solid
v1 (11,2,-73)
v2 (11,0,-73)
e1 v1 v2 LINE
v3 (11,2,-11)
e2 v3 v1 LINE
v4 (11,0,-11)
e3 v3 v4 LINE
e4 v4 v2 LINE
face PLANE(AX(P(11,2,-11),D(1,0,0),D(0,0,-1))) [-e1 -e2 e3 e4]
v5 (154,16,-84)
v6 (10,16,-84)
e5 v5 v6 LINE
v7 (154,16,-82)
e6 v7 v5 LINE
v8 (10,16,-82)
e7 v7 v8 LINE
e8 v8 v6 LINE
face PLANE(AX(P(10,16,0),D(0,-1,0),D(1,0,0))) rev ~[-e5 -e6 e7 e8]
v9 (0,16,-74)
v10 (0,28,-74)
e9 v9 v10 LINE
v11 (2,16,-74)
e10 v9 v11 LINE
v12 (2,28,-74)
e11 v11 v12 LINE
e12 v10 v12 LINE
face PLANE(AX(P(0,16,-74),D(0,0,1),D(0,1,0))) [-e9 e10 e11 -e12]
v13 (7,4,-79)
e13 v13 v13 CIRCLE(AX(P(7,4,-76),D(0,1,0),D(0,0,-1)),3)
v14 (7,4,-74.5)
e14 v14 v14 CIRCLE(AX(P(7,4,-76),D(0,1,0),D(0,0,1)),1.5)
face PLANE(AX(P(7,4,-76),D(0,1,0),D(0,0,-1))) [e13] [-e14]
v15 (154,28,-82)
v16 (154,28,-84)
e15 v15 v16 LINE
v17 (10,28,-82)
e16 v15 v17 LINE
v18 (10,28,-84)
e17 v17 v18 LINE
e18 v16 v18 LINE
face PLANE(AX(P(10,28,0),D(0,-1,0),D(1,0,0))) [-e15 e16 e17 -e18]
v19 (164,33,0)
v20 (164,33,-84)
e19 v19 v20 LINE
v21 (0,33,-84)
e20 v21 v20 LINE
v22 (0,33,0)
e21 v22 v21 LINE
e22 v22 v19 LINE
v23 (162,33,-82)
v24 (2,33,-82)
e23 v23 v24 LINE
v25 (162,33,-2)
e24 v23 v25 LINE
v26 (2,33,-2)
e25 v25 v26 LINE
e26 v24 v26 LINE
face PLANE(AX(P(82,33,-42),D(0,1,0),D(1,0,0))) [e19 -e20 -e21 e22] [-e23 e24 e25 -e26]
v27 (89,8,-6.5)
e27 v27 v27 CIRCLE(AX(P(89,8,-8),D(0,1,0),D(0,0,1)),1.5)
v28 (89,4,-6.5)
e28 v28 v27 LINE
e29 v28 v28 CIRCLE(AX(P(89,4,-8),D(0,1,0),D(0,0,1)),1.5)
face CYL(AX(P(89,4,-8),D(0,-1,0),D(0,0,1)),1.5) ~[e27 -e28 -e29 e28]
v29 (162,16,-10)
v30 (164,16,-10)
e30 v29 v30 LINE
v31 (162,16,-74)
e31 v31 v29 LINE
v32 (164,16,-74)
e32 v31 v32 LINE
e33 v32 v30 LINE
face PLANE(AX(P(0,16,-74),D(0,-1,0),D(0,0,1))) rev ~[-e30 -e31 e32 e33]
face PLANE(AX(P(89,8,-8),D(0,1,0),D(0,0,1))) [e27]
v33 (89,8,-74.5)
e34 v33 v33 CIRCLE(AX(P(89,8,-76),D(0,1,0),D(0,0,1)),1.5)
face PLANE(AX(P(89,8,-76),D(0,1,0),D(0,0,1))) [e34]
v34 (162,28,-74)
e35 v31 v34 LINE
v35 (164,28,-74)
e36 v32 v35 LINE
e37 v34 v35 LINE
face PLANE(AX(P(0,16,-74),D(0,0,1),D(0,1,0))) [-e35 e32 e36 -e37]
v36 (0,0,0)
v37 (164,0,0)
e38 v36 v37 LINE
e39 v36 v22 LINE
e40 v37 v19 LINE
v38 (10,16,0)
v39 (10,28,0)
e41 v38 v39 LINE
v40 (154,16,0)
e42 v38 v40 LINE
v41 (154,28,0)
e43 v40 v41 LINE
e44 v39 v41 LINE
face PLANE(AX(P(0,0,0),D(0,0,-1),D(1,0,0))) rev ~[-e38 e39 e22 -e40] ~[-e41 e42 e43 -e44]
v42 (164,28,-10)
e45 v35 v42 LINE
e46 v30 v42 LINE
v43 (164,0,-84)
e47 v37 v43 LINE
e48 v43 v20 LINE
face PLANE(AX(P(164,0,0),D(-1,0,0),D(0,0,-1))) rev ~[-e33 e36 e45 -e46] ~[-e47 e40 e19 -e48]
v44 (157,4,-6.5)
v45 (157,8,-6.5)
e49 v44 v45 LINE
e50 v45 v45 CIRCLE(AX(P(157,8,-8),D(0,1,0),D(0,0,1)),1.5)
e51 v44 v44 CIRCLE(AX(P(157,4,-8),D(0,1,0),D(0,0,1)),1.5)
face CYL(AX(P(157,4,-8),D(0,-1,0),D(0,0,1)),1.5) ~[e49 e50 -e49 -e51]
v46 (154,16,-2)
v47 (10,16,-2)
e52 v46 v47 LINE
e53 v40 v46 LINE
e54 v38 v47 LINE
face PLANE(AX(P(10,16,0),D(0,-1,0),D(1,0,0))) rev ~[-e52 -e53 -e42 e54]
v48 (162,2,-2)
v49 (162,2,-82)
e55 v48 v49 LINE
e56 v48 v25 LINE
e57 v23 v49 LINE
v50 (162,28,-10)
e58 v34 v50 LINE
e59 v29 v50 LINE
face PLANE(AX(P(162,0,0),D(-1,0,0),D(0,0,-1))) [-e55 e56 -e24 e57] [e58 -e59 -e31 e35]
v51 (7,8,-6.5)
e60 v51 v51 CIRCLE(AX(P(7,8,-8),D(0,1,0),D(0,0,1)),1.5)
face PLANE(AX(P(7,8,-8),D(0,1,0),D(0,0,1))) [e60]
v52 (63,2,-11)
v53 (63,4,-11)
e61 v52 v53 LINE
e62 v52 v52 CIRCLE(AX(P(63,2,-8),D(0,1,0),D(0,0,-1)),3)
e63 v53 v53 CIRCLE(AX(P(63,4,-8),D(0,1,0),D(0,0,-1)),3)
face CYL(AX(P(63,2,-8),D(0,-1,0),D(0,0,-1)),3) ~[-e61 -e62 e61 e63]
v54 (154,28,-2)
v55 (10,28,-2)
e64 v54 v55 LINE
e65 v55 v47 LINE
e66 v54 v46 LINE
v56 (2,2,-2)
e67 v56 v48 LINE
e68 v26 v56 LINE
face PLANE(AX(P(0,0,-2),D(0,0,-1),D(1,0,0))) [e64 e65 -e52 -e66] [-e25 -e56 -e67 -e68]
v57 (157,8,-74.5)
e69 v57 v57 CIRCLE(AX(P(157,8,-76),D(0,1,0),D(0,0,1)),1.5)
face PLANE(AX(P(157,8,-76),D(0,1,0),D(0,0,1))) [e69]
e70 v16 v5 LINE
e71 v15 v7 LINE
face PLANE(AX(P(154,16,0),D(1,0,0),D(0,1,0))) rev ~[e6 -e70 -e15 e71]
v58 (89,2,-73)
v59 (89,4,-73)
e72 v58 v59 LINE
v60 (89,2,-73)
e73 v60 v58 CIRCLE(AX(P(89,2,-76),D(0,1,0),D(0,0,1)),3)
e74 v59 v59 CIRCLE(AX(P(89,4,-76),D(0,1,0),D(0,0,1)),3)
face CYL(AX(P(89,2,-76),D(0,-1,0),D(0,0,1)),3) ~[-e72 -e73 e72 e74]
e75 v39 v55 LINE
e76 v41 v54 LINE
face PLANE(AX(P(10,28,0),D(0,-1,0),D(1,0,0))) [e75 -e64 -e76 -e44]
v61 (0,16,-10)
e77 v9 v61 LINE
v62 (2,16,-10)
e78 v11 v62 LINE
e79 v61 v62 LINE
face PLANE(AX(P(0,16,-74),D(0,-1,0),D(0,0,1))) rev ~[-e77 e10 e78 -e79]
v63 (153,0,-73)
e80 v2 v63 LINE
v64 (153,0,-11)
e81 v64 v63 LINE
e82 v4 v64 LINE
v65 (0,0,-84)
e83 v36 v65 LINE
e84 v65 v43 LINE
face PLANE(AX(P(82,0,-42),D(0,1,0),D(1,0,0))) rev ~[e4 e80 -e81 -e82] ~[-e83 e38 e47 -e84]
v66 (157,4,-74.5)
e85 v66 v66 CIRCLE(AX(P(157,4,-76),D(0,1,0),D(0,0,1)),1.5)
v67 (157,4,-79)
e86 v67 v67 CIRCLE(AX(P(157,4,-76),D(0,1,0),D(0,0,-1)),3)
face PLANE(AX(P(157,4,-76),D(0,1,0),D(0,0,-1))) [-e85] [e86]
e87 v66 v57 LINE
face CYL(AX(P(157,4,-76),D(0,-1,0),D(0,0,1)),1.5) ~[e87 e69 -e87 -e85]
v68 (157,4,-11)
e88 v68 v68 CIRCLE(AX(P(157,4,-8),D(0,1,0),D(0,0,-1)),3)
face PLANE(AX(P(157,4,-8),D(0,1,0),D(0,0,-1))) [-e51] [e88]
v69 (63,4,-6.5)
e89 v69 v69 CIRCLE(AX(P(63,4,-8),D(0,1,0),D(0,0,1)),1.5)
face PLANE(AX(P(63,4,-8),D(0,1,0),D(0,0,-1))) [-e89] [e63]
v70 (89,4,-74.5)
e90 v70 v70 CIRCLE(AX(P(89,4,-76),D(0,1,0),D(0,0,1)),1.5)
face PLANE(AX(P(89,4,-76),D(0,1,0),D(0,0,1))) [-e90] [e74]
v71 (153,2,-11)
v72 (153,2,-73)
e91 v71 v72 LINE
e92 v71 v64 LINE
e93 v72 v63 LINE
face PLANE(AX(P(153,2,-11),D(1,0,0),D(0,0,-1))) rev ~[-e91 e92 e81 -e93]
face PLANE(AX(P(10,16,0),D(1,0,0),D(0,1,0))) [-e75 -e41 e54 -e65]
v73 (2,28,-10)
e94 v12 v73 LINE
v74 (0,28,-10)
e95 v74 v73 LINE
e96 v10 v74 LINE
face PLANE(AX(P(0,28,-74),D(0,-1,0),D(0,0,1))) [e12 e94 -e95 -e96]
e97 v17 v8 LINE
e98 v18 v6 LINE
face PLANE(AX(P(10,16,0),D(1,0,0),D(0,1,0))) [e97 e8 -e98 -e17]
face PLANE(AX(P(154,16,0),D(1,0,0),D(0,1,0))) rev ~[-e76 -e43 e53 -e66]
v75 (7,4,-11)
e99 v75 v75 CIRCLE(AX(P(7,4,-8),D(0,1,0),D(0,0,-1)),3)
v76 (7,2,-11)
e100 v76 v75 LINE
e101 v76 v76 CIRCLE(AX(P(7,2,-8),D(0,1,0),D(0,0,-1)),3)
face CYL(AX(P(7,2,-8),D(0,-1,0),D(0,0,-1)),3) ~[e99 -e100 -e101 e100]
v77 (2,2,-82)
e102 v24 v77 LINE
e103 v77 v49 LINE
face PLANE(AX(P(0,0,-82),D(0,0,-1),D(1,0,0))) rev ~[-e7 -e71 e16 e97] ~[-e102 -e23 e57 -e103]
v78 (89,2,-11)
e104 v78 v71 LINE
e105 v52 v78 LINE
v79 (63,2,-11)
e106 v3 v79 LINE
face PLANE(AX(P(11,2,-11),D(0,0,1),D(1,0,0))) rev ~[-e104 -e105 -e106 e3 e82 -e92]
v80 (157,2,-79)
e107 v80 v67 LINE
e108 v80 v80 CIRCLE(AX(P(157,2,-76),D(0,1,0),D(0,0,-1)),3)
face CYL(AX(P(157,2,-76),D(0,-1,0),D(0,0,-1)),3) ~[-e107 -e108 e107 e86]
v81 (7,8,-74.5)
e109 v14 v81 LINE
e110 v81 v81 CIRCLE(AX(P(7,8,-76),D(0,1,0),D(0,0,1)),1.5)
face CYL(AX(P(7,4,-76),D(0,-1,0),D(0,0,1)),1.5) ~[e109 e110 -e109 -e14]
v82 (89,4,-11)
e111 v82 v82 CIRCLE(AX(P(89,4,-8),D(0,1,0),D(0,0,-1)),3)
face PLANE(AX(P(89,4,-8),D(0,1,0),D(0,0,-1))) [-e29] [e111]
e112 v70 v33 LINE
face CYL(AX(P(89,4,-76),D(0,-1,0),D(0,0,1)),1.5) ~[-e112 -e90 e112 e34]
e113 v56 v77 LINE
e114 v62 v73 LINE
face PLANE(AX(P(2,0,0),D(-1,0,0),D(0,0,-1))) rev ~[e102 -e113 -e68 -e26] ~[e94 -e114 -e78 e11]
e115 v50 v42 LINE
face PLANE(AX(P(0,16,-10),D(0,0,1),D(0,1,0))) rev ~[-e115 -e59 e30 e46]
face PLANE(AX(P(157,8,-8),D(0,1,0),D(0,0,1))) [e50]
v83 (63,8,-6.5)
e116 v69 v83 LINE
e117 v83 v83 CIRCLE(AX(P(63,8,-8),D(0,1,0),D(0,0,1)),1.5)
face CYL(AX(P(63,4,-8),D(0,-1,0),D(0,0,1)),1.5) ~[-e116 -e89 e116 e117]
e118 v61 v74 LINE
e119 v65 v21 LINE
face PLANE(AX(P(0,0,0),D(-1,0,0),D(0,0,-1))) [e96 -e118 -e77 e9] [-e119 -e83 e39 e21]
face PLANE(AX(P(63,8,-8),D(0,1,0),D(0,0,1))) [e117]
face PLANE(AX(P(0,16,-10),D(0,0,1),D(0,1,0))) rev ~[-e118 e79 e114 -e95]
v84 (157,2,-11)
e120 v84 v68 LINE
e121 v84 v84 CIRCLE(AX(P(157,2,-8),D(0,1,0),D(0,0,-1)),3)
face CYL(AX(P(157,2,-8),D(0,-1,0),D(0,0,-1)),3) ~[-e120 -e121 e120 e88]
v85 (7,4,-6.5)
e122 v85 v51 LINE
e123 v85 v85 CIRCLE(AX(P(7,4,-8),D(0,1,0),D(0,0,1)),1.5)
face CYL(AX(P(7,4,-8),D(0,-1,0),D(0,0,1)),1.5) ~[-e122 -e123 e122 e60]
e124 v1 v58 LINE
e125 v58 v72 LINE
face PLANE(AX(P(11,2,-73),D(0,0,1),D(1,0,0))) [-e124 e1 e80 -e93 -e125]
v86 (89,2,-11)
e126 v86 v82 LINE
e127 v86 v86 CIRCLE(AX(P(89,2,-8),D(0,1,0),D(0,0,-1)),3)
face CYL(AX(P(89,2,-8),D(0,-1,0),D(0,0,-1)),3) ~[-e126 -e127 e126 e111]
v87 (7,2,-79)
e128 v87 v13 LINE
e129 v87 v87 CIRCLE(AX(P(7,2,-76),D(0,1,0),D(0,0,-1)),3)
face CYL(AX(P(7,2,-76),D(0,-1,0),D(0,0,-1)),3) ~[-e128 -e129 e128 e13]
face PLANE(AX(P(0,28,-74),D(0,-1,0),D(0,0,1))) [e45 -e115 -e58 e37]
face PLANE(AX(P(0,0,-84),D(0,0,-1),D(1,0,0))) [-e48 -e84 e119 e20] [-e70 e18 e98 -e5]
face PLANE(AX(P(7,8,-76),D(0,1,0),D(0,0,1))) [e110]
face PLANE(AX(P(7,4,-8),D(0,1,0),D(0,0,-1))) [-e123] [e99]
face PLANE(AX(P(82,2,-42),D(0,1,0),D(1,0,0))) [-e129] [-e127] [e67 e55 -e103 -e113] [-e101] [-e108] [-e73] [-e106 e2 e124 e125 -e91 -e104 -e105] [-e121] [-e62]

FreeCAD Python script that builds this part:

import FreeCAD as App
import Part
import Sketcher
from FreeCAD import Vector
Q = App.Units.Quantity


def faces_at(feature, points):
    """Names of the faces that lie closest to the given points."""
    faces = feature.Shape.Faces
    near = lambda p: min(range(len(faces)), key=lambda i: faces[i].distToShape(Part.Vertex(*p))[0])
    return sorted({f"Face{near(p) + 1}" for p in points})


def add_polygon(sketch, points):
    """Adds a closed chain of lines whose ends are joined by coincident constraints."""
    first, n = sketch.GeometryCount, len(points)
    for a, b in zip(points, points[1:] + points[:1]):
        sketch.addGeometry(Part.LineSegment(App.Vector(*a, 0), App.Vector(*b, 0)), False)
    for i in range(n):
        sketch.addConstraint(Sketcher.Constraint("Coincident", first + i, 2, first + (i + 1) % n, 1))

doc = App.newDocument("Part")
params = doc.addObject("Spreadsheet::Sheet", "Params")
for row, (alias, value) in enumerate([
    ("sketch1_width", "164 mm"),
    ("sketch1_height", "84 mm"),
    ("pad1_length", "33 mm"),
    ("thickness_wall", "2 mm"),
    ("sketch2_width", "142 mm"),
    ("sketch2_height", "62 mm"),
    ("pocket1_length", "2 mm"),
    ("sketch3_diameter", "6 mm"),
    ("pad2_length", "2 mm"),
    ("sketch4_diameter", "3 mm"),
    ("pad3_length", "4 mm"),
    ("sketch5_diameter", "6 mm"),
    ("pad4_length", "2 mm"),
    ("sketch6_diameter", "3 mm"),
    ("pad5_length", "4 mm"),
    ("sketch7_width", "12 mm"),
    ("sketch7_height", "64 mm"),
    ("sketch8_width", "144 mm"),
    ("sketch8_height", "12 mm"),
], start=1):
    params.set(f"A{row}", alias)
    params.set(f"B{row}", "=" + value)
    params.setAlias(f"B{row}", alias)

body = doc.addObject("PartDesign::Body", "Body")

sketch1 = doc.addObject("Sketcher::SketchObject", "Sketch")
body.addObject(sketch1)
sketch1.AttachmentSupport = (doc.XZ_Plane, [""])
sketch1.MapMode = "FlatFace"
add_polygon(sketch1, [(0, -84), (0, 0), (164, 0), (164, -84)])
sketch1.addConstraint(Sketcher.Constraint("Vertical", 0))
sketch1.addConstraint(Sketcher.Constraint("Horizontal", 1))
sketch1.addConstraint(Sketcher.Constraint("Vertical", 2))
sketch1.addConstraint(Sketcher.Constraint("Horizontal", 3))
sketch1.addConstraint(Sketcher.Constraint("Coincident", 0, 2, -1, 1))
sketch1.addConstraint(Sketcher.Constraint("DistanceX", 1, 1, 1, 2, Q("164 mm")))
sketch1.addConstraint(Sketcher.Constraint("DistanceY", 0, 1, 0, 2, Q("84 mm")))
sketch1.setExpression("Constraints[9]", "Params.sketch1_width")
sketch1.setExpression("Constraints[10]", "Params.sketch1_height")
pad1 = doc.addObject("PartDesign::Pad", "Pad")
body.addObject(pad1)
pad1.Profile = sketch1
pad1.setExpression("Length", "Params.pad1_length")
pad1.Reversed = True
doc.recompute()

thickness = doc.addObject("PartDesign::Thickness", "Thickness")
body.addObject(thickness)
thickness.Base = (pad1, faces_at(pad1, [(82, 33, -42)]))
thickness.setExpression("Value", "Params.thickness_wall")
thickness.Reversed = True
thickness.Join = "Intersection"

sketch2 = doc.addObject("Sketcher::SketchObject", "Sketch001")
body.addObject(sketch2)
sketch2.AttachmentSupport = (doc.XZ_Plane, [""])
sketch2.MapMode = "FlatFace"
sketch2.AttachmentOffset = App.Placement(Vector(0, 0, -2), App.Rotation())
add_polygon(sketch2, [(11, -73), (11, -11), (153, -11), (153, -73)])
sketch2.addConstraint(Sketcher.Constraint("Vertical", 0))
sketch2.addConstraint(Sketcher.Constraint("Horizontal", 1))
sketch2.addConstraint(Sketcher.Constraint("Vertical", 2))
sketch2.addConstraint(Sketcher.Constraint("Horizontal", 3))
sketch2.addConstraint(Sketcher.Constraint("DistanceX", 1, 1, 1, 2, Q("142 mm")))
sketch2.addConstraint(Sketcher.Constraint("DistanceY", 0, 1, 0, 2, Q("62 mm")))
sketch2.addConstraint(Sketcher.Constraint("DistanceX", -1, 1, 0, 2, Q("11 mm")))
sketch2.addConstraint(Sketcher.Constraint("DistanceY", 0, 2, -1, 1, Q("11 mm")))
sketch2.setExpression("Constraints[8]", "Params.sketch2_width")
sketch2.setExpression("Constraints[9]", "Params.sketch2_height")
pocket1 = doc.addObject("PartDesign::Pocket", "Pocket")
body.addObject(pocket1)
pocket1.Profile = sketch2
pocket1.setExpression("Length", "Params.pocket1_length")
pocket1.Reversed = True

sketch3 = doc.addObject("Sketcher::SketchObject", "Sketch002")
body.addObject(sketch3)
sketch3.AttachmentSupport = (doc.XZ_Plane, [""])
sketch3.MapMode = "FlatFace"
sketch3.AttachmentOffset = App.Placement(Vector(0, 0, -2), App.Rotation())
sketch3.addGeometry(Part.Circle(Vector(157, -76, 0), Vector(0, 0, 1), 3), False)
sketch3.addGeometry(Part.Circle(Vector(89, -76, 0), Vector(0, 0, 1), 3), False)
sketch3.addGeometry(Part.Circle(Vector(89, -8, 0), Vector(0, 0, 1), 3), False)
sketch3.addGeometry(Part.Circle(Vector(157, -8, 0), Vector(0, 0, 1), 3), False)
sketch3.addConstraint(Sketcher.Constraint("Equal", 0, 1))
sketch3.addConstraint(Sketcher.Constraint("Equal", 1, 2))
sketch3.addConstraint(Sketcher.Constraint("Equal", 2, 3))
sketch3.addConstraint(Sketcher.Constraint("Horizontal", 0, 3, 1, 3))
sketch3.addConstraint(Sketcher.Constraint("Horizontal", 2, 3, 3, 3))
sketch3.addConstraint(Sketcher.Constraint("Vertical", 1, 3, 2, 3))
sketch3.addConstraint(Sketcher.Constraint("Vertical", 0, 3, 3, 3))
sketch3.addConstraint(Sketcher.Constraint("Diameter", 0, Q("6 mm")))
sketch3.addConstraint(Sketcher.Constraint("DistanceX", -1, 1, 0, 3, Q("157 mm")))
sketch3.addConstraint(Sketcher.Constraint("DistanceY", 0, 3, -1, 1, Q("76 mm")))
sketch3.addConstraint(Sketcher.Constraint("DistanceX", -1, 1, 1, 3, Q("89 mm")))
sketch3.addConstraint(Sketcher.Constraint("DistanceY", 2, 3, -1, 1, Q("8 mm")))
sketch3.setExpression("Constraints[7]", "Params.sketch3_diameter")
pad2 = doc.addObject("PartDesign::Pad", "Pad001")
body.addObject(pad2)
pad2.Profile = sketch3
pad2.setExpression("Length", "Params.pad2_length")
pad2.Reversed = True

sketch4 = doc.addObject("Sketcher::SketchObject", "Sketch003")
body.addObject(sketch4)
sketch4.AttachmentSupport = (doc.XZ_Plane, [""])
sketch4.MapMode = "FlatFace"
sketch4.AttachmentOffset = App.Placement(Vector(0, 0, -4), App.Rotation())
sketch4.addGeometry(Part.Circle(Vector(89, -76, 0), Vector(0, 0, 1), 1.5), False)
sketch4.addGeometry(Part.Circle(Vector(157, -76, 0), Vector(0, 0, 1), 1.5), False)
sketch4.addGeometry(Part.Circle(Vector(89, -8, 0), Vector(0, 0, 1), 1.5), False)
sketch4.addGeometry(Part.Circle(Vector(157, -8, 0), Vector(0, 0, 1), 1.5), False)
sketch4.addConstraint(Sketcher.Constraint("Equal", 0, 1))
sketch4.addConstraint(Sketcher.Constraint("Equal", 1, 2))
sketch4.addConstraint(Sketcher.Constraint("Equal", 2, 3))
sketch4.addConstraint(Sketcher.Constraint("Horizontal", 0, 3, 1, 3))
sketch4.addConstraint(Sketcher.Constraint("Horizontal", 2, 3, 3, 3))
sketch4.addConstraint(Sketcher.Constraint("Vertical", 0, 3, 2, 3))
sketch4.addConstraint(Sketcher.Constraint("Vertical", 1, 3, 3, 3))
sketch4.addConstraint(Sketcher.Constraint("Diameter", 0, Q("3 mm")))
sketch4.addConstraint(Sketcher.Constraint("DistanceX", -1, 1, 0, 3, Q("89 mm")))
sketch4.addConstraint(Sketcher.Constraint("DistanceY", 0, 3, -1, 1, Q("76 mm")))
sketch4.addConstraint(Sketcher.Constraint("DistanceX", -1, 1, 1, 3, Q("157 mm")))
sketch4.addConstraint(Sketcher.Constraint("DistanceY", 2, 3, -1, 1, Q("8 mm")))
sketch4.setExpression("Constraints[7]", "Params.sketch4_diameter")
pad3 = doc.addObject("PartDesign::Pad", "Pad002")
body.addObject(pad3)
pad3.Profile = sketch4
pad3.setExpression("Length", "Params.pad3_length")
pad3.Reversed = True

sketch5 = doc.addObject("Sketcher::SketchObject", "Sketch004")
body.addObject(sketch5)
sketch5.AttachmentSupport = (doc.XZ_Plane, [""])
sketch5.MapMode = "FlatFace"
sketch5.AttachmentOffset = App.Placement(Vector(0, 0, -2), App.Rotation())
sketch5.addGeometry(Part.Circle(Vector(7, -76, 0), Vector(0, 0, 1), 3), False)
sketch5.addGeometry(Part.Circle(Vector(7, -8, 0), Vector(0, 0, 1), 3), False)
sketch5.addGeometry(Part.Circle(Vector(63, -8, 0), Vector(0, 0, 1), 3), False)
sketch5.addConstraint(Sketcher.Constraint("Equal", 0, 1))
sketch5.addConstraint(Sketcher.Constraint("Equal", 1, 2))
sketch5.addConstraint(Sketcher.Constraint("Horizontal", 1, 3, 2, 3))
sketch5.addConstraint(Sketcher.Constraint("Vertical", 0, 3, 1, 3))
sketch5.addConstraint(Sketcher.Constraint("Diameter", 0, Q("6 mm")))
sketch5.addConstraint(Sketcher.Constraint("DistanceX", -1, 1, 0, 3, Q("7 mm")))
sketch5.addConstraint(Sketcher.Constraint("DistanceY", 0, 3, -1, 1, Q("76 mm")))
sketch5.addConstraint(Sketcher.Constraint("DistanceY", 1, 3, -1, 1, Q("8 mm")))
sketch5.addConstraint(Sketcher.Constraint("DistanceX", -1, 1, 2, 3, Q("63 mm")))
sketch5.setExpression("Constraints[4]", "Params.sketch5_diameter")
pad4 = doc.addObject("PartDesign::Pad", "Pad003")
body.addObject(pad4)
pad4.Profile = sketch5
pad4.setExpression("Length", "Params.pad4_length")
pad4.Reversed = True

sketch6 = doc.addObject("Sketcher::SketchObject", "Sketch005")
body.addObject(sketch6)
sketch6.AttachmentSupport = (doc.XZ_Plane, [""])
sketch6.MapMode = "FlatFace"
sketch6.AttachmentOffset = App.Placement(Vector(0, 0, -4), App.Rotation())
sketch6.addGeometry(Part.Circle(Vector(7, -76, 0), Vector(0, 0, 1), 1.5), False)
sketch6.addGeometry(Part.Circle(Vector(7, -8, 0), Vector(0, 0, 1), 1.5), False)
sketch6.addGeometry(Part.Circle(Vector(63, -8, 0), Vector(0, 0, 1), 1.5), False)
sketch6.addConstraint(Sketcher.Constraint("Equal", 0, 1))
sketch6.addConstraint(Sketcher.Constraint("Equal", 1, 2))
sketch6.addConstraint(Sketcher.Constraint("Horizontal", 1, 3, 2, 3))
sketch6.addConstraint(Sketcher.Constraint("Vertical", 0, 3, 1, 3))
sketch6.addConstraint(Sketcher.Constraint("Diameter", 0, Q("3 mm")))
sketch6.addConstraint(Sketcher.Constraint("DistanceX", -1, 1, 0, 3, Q("7 mm")))
sketch6.addConstraint(Sketcher.Constraint("DistanceY", 0, 3, -1, 1, Q("76 mm")))
sketch6.addConstraint(Sketcher.Constraint("DistanceY", 1, 3, -1, 1, Q("8 mm")))
sketch6.addConstraint(Sketcher.Constraint("DistanceX", -1, 1, 2, 3, Q("63 mm")))
sketch6.setExpression("Constraints[4]", "Params.sketch6_diameter")
pad5 = doc.addObject("PartDesign::Pad", "Pad004")
body.addObject(pad5)
pad5.Profile = sketch6
pad5.setExpression("Length", "Params.pad5_length")
pad5.Reversed = True

sketch7 = doc.addObject("Sketcher::SketchObject", "Sketch006")
body.addObject(sketch7)
sketch7.AttachmentSupport = (doc.YZ_Plane, [""])
sketch7.MapMode = "FlatFace"
add_polygon(sketch7, [(28, -74), (16, -74), (16, -10), (28, -10)])
sketch7.addConstraint(Sketcher.Constraint("Horizontal", 0))
sketch7.addConstraint(Sketcher.Constraint("Vertical", 1))
sketch7.addConstraint(Sketcher.Constraint("Horizontal", 2))
sketch7.addConstraint(Sketcher.Constraint("Vertical", 3))
sketch7.addConstraint(Sketcher.Constraint("DistanceX", 0, 2, 0, 1, Q("12 mm")))
sketch7.addConstraint(Sketcher.Constraint("DistanceY", 1, 1, 1, 2, Q("64 mm")))
sketch7.addConstraint(Sketcher.Constraint("DistanceX", -1, 1, 0, 2, Q("16 mm")))
sketch7.addConstraint(Sketcher.Constraint("DistanceY", 0, 2, -1, 1, Q("74 mm")))
sketch7.setExpression("Constraints[8]", "Params.sketch7_width")
sketch7.setExpression("Constraints[9]", "Params.sketch7_height")
pocket2 = doc.addObject("PartDesign::Pocket", "Pocket001")
body.addObject(pocket2)
pocket2.Profile = sketch7
pocket2.Type = "ThroughAll"
pocket2.Reversed = True

sketch8 = doc.addObject("Sketcher::SketchObject", "Sketch007")
body.addObject(sketch8)
sketch8.AttachmentSupport = (doc.XY_Plane, [""])
sketch8.MapMode = "FlatFace"
add_polygon(sketch8, [(10, 28), (10, 16), (154, 16), (154, 28)])
sketch8.addConstraint(Sketcher.Constraint("Vertical", 0))
sketch8.addConstraint(Sketcher.Constraint("Horizontal", 1))
sketch8.addConstraint(Sketcher.Constraint("Vertical", 2))
sketch8.addConstraint(Sketcher.Constraint("Horizontal", 3))
sketch8.addConstraint(Sketcher.Constraint("DistanceX", 1, 1, 1, 2, Q("144 mm")))
sketch8.addConstraint(Sketcher.Constraint("DistanceY", 0, 2, 0, 1, Q("12 mm")))
sketch8.addConstraint(Sketcher.Constraint("DistanceX", -1, 1, 0, 2, Q("10 mm")))
sketch8.addConstraint(Sketcher.Constraint("DistanceY", -1, 1, 0, 2, Q("16 mm")))
sketch8.setExpression("Constraints[8]", "Params.sketch8_width")
sketch8.setExpression("Constraints[9]", "Params.sketch8_height")
pocket3 = doc.addObject("PartDesign::Pocket", "Pocket002")
body.addObject(pocket3)
pocket3.Profile = sketch8
pocket3.Type = "ThroughAll"

doc.recompute()
